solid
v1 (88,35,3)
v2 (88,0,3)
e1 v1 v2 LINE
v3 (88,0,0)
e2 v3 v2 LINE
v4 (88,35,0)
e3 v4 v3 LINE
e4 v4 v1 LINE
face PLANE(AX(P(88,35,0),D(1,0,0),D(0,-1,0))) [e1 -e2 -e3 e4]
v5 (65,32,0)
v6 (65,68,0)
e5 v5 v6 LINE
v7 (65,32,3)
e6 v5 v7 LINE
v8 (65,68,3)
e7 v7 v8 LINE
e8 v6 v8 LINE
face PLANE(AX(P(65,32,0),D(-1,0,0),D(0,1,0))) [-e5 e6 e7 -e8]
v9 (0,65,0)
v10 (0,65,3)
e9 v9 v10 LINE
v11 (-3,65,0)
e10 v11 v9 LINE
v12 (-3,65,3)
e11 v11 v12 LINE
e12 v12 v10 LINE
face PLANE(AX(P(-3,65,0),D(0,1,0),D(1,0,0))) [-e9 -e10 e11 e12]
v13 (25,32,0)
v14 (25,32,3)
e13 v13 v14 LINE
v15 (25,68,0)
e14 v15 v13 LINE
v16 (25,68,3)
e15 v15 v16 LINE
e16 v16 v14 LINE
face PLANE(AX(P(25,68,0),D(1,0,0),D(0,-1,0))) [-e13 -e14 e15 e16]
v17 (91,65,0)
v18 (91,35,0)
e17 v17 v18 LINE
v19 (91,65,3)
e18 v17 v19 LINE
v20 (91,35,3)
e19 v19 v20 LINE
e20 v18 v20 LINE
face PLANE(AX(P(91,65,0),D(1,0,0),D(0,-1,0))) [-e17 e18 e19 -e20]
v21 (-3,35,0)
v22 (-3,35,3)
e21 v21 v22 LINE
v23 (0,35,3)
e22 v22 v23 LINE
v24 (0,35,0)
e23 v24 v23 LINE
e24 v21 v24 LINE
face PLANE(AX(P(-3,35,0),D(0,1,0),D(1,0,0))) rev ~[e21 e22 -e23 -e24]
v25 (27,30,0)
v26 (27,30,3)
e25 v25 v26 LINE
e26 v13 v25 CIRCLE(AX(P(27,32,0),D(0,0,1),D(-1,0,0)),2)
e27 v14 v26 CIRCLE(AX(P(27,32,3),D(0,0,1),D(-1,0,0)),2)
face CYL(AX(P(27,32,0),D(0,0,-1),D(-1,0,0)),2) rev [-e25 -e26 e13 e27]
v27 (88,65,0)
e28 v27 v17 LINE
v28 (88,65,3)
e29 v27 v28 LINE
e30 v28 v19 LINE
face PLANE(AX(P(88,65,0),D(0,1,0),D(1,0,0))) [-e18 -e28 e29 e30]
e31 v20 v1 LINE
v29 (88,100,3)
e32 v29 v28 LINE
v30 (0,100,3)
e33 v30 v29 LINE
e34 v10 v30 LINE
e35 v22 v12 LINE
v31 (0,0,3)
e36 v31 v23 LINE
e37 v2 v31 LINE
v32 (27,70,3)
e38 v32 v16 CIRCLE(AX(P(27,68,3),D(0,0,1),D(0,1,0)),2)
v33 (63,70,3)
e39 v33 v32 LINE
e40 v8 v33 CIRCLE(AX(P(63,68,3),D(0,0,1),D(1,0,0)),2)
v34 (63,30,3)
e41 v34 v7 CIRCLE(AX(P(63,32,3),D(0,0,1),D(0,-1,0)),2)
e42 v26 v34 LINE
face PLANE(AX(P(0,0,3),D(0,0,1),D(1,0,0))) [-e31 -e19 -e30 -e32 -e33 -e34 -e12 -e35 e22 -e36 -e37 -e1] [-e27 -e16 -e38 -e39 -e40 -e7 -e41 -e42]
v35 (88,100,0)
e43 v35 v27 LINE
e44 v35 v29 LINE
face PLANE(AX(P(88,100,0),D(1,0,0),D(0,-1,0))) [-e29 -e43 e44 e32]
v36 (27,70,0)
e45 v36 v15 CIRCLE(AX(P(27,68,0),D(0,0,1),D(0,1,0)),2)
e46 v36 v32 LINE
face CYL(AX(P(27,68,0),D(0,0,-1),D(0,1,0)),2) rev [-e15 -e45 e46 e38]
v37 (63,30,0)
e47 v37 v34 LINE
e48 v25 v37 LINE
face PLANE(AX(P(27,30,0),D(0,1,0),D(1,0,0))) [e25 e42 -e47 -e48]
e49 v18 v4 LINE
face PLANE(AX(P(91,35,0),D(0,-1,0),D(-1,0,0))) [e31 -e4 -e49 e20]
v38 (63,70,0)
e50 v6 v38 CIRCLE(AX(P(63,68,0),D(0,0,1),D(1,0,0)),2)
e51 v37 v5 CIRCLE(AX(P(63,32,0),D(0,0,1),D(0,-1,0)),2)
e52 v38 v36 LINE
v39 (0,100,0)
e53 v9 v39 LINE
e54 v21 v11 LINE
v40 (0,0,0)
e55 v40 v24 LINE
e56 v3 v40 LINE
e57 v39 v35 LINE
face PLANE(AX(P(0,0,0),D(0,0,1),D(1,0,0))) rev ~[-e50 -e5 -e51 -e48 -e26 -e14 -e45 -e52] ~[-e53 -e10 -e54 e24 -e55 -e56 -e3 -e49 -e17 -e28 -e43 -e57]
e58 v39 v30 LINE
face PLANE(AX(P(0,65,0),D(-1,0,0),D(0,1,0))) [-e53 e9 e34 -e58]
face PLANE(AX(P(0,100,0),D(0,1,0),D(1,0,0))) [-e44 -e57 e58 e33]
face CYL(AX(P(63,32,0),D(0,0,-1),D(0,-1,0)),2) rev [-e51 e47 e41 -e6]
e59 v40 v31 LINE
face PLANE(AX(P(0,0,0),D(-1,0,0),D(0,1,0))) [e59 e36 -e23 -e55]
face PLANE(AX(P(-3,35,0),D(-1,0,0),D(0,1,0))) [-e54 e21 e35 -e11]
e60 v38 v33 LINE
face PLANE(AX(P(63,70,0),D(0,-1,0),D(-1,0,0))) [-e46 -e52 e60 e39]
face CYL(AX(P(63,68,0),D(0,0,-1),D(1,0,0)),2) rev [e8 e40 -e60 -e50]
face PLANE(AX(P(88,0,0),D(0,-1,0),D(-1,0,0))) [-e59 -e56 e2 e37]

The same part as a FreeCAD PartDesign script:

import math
import FreeCAD as App
import Part
import Sketcher


def add_polygon(sketch, points):
    """Adds a closed chain of lines whose ends are joined by coincident constraints."""
    first, n = sketch.GeometryCount, len(points)
    for a, b in zip(points, points[1:] + points[:1]):
        sketch.addGeometry(Part.LineSegment(App.Vector(*a, 0), App.Vector(*b, 0)), False)
    for i in range(n):
        sketch.addConstraint(Sketcher.Constraint("Coincident", first + i, 2, first + (i + 1) % n, 1))

doc = App.newDocument("Part")
body = doc.addObject("PartDesign::Body", "Body")

sketch1 = body.newObject("Sketcher::SketchObject", "Sketch")
sketch1.AttachmentSupport = (doc.getObject("XY_Plane"), [""])
sketch1.MapMode = "FlatFace"
add_polygon(sketch1, [(-3, 65), (-3, 35), (0, 35), (0, 0), (88, 0), (88, 35), (91, 35), (91, 65), (88, 65), (88, 100), (0, 100), (0, 65)])
sketch1.addGeometry(Part.LineSegment(App.Vector(27, 70, 0), App.Vector(63, 70, 0)), False)
sketch1.addGeometry(Part.ArcOfCircle(Part.Circle(App.Vector(63, 68, 0), App.Vector(0, 0, 1), 2), math.radians(0), math.radians(90)), False)
sketch1.addGeometry(Part.LineSegment(App.Vector(65, 68, 0), App.Vector(65, 32, 0)), False)
sketch1.addGeometry(Part.ArcOfCircle(Part.Circle(App.Vector(63, 32, 0), App.Vector(0, 0, 1), 2), math.radians(-90), math.radians(0)), False)
sketch1.addGeometry(Part.LineSegment(App.Vector(63, 30, 0), App.Vector(27, 30, 0)), False)
sketch1.addGeometry(Part.ArcOfCircle(Part.Circle(App.Vector(27, 32, 0), App.Vector(0, 0, 1), 2), math.radians(180), math.radians(270)), False)
sketch1.addGeometry(Part.LineSegment(App.Vector(25, 32, 0), App.Vector(25, 68, 0)), False)
sketch1.addGeometry(Part.ArcOfCircle(Part.Circle(App.Vector(27, 68, 0), App.Vector(0, 0, 1), 2), math.radians(90), math.radians(180)), False)
sketch1.addConstraint([
    Sketcher.Constraint("Tangent", 12, 2, 13, 2),
    Sketcher.Constraint("Tangent", 13, 1, 14, 1),
    Sketcher.Constraint("Tangent", 14, 2, 15, 2),
    Sketcher.Constraint("Tangent", 15, 1, 16, 1),
    Sketcher.Constraint("Tangent", 16, 2, 17, 2),
    Sketcher.Constraint("Tangent", 17, 1, 18, 1),
    Sketcher.Constraint("Tangent", 18, 2, 19, 2),
    Sketcher.Constraint("Tangent", 19, 1, 12, 1),
    Sketcher.Constraint("Vertical", 0),
    Sketcher.Constraint("Horizontal", 1),
    Sketcher.Constraint("Vertical", 2),
    Sketcher.Constraint("Horizontal", 3),
    Sketcher.Constraint("Vertical", 4),
    Sketcher.Constraint("Horizontal", 5),
    Sketcher.Constraint("Vertical", 6),
    Sketcher.Constraint("Horizontal", 7),
    Sketcher.Constraint("Vertical", 8),
    Sketcher.Constraint("Horizontal", 9),
    Sketcher.Constraint("Vertical", 10),
    Sketcher.Constraint("Horizontal", 11),
    Sketcher.Constraint("Horizontal", 12),
    Sketcher.Constraint("Vertical", 14),
    Sketcher.Constraint("Horizontal", 16),
    Sketcher.Constraint("Vertical", 18),
    Sketcher.Constraint("Coincident", 2, 2, -1, 1),
    Sketcher.Constraint("Equal", 13, 15),
    Sketcher.Constraint("Equal", 15, 17),
    Sketcher.Constraint("Equal", 17, 19),
    Sketcher.Constraint("PointOnObject", 9, 2, -2),
    Sketcher.Constraint("Horizontal", 1, 2, 4, 2),
    Sketcher.Constraint("Horizontal", 7, 2, 10, 2),
    Sketcher.Constraint("Vertical", 4, 2, 7, 2),
    Sketcher.Constraint("Equal", 1, 5),
    Sketcher.Constraint("Equal", 4, 8),
    Sketcher.Constraint("Equal", 16, 14),
    Sketcher.Constraint("Radius", 13, 2.0),
    Sketcher.Constraint("DistanceX", 1, 1, 1, 2, 3.0),
    Sketcher.Constraint("DistanceX", 3, 1, 3, 2, 88.0),
    Sketcher.Constraint("DistanceY", 0, 2, 0, 1, 30.0),
    Sketcher.Constraint("DistanceY", 2, 2, 2, 1, 35.0),
    Sketcher.Constraint("DistanceY", -1, 1, 15, 1, 30.0),
    Sketcher.Constraint("DistanceX", -1, 1, 17, 1, 25.0),
    Sketcher.Constraint("DistanceX", 15, 3, 3, 2, 25.0),
])
pad1 = body.newObject("PartDesign::Pad", "Pad")
pad1.Profile = sketch1
pad1.Length = 3

doc.recompute()
